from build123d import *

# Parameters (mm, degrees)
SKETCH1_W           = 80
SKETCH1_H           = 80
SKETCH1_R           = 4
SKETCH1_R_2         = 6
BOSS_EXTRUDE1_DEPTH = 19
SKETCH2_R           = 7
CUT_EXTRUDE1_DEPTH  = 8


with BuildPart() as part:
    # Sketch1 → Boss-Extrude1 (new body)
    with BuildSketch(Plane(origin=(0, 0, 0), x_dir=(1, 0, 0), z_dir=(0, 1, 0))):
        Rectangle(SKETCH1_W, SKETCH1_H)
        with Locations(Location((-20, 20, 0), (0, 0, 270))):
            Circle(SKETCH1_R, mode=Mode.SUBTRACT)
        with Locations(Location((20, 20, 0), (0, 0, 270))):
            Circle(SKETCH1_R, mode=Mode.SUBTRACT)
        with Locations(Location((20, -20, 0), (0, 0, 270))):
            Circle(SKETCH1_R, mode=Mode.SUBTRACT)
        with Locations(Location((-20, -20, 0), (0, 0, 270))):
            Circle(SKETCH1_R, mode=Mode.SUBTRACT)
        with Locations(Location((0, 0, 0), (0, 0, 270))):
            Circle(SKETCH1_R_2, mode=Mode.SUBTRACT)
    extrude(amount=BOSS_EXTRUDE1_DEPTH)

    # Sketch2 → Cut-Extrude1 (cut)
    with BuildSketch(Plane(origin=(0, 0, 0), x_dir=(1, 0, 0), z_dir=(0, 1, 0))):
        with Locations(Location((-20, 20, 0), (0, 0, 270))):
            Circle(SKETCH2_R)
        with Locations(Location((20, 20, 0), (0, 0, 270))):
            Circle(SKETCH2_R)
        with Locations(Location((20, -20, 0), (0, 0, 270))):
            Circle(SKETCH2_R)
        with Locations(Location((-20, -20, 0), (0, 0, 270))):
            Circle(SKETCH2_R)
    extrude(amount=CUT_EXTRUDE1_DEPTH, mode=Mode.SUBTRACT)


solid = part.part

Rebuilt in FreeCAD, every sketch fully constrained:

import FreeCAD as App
import Part
import Sketcher
Q = App.Units.Quantity

doc = App.newDocument("Part")
body = doc.addObject("PartDesign::Body", "Body")

# Sketch on XZ plane
sketch1 = body.newObject("Sketcher::SketchObject", "Sketch")
sketch1.AttachmentSupport = (doc.getObject("XZ_Plane"), [""])
sketch1.MapMode = "FlatFace"
sketch1.addGeometry([
    Part.LineSegment(App.Vector(-40, -40, 0), App.Vector(-40, 40, 0)),  # 0
    Part.LineSegment(App.Vector(-40, 40, 0), App.Vector(40, 40, 0)),  # 1
    Part.LineSegment(App.Vector(40, 40, 0), App.Vector(40, -40, 0)),  # 2
    Part.LineSegment(App.Vector(40, -40, 0), App.Vector(-40, -40, 0)),  # 3
    Part.Circle(App.Vector(-20, 20, 0), App.Vector(0, 0, 1), 4),  # 4
    Part.Circle(App.Vector(20, 20, 0), App.Vector(0, 0, 1), 4),  # 5
    Part.Circle(App.Vector(-20, -20, 0), App.Vector(0, 0, 1), 4),  # 6
    Part.Circle(App.Vector(0, 0, 0), App.Vector(0, 0, 1), 6),  # 7
    Part.Circle(App.Vector(20, -20, 0), App.Vector(0, 0, 1), 4),  # 8
], False)
sketch1.addConstraint([
    Sketcher.Constraint("Coincident", 0, 2, 1, 1),
    Sketcher.Constraint("Coincident", 1, 2, 2, 1),
    Sketcher.Constraint("Coincident", 2, 2, 3, 1),
    Sketcher.Constraint("Coincident", 3, 2, 0, 1),
    Sketcher.Constraint("Vertical", 0),
    Sketcher.Constraint("Horizontal", 1),
    Sketcher.Constraint("Vertical", 2),
    Sketcher.Constraint("Horizontal", 3),
    Sketcher.Constraint("Coincident", 7, 3, -1, 1),
    Sketcher.Constraint("Equal", 4, 5),
    Sketcher.Constraint("Equal", 5, 6),
    Sketcher.Constraint("Equal", 6, 8),
    Sketcher.Constraint("Symmetric", 5, 3, 6, 3, -1, 1),
    Sketcher.Constraint("Symmetric", 4, 3, 8, 3, -1, 1),
    Sketcher.Constraint("Symmetric", 0, 2, 2, 2, -1, 1),
    Sketcher.Constraint("Symmetric", 4, 3, 5, 3, -2),
    Sketcher.Constraint("Equal", 3, 0),
    Sketcher.Constraint("Diameter", 4, Q("8 mm")),
    Sketcher.Constraint("Diameter", 7, Q("12 mm")),
    Sketcher.Constraint("DistanceX", 1, 1, 1, 2, Q("80 mm")),
    Sketcher.Constraint("DistanceX", 4, 3, -1, 1, Q("20 mm")),
    Sketcher.Constraint("DistanceY", -1, 1, 4, 3, Q("20 mm")),
])
pad1 = body.newObject("PartDesign::Pad", "Pad")
pad1.Profile = sketch1
pad1.Length = 19
pad1.Reversed = True

# Sketch on XZ plane
sketch2 = body.newObject("Sketcher::SketchObject", "Sketch001")
sketch2.AttachmentSupport = (doc.getObject("XZ_Plane"), [""])
sketch2.MapMode = "FlatFace"
sketch2.addGeometry([
    Part.Circle(App.Vector(-20, -20, 0), App.Vector(0, 0, 1), 7),
    Part.Circle(App.Vector(20, -20, 0), App.Vector(0, 0, 1), 7),
    Part.Circle(App.Vector(20, 20, 0), App.Vector(0, 0, 1), 7),
    Part.Circle(App.Vector(-20, 20, 0), App.Vector(0, 0, 1), 7),
], False)
sketch2.addConstraint([
    Sketcher.Constraint("Equal", 0, 1),
    Sketcher.Constraint("Equal", 1, 2),
    Sketcher.Constraint("Equal", 2, 3),
    Sketcher.Constraint("Symmetric", 0, 3, 2, 3, -1, 1),
    Sketcher.Constraint("Symmetric", 1, 3, 3, 3, -1, 1),
    Sketcher.Constraint("Symmetric", 0, 3, 1, 3, -2),
    Sketcher.Constraint("Diameter", 0, Q("14 mm")),
    Sketcher.Constraint("DistanceX", 0, 3, -1, 1, Q("20 mm")),
    Sketcher.Constraint("DistanceY", 0, 3, -1, 1, Q("20 mm")),
])
pocket1 = body.newObject("PartDesign::Pocket", "Pocket")
pocket1.Profile = sketch2
pocket1.Length = 8

doc.recompute()
